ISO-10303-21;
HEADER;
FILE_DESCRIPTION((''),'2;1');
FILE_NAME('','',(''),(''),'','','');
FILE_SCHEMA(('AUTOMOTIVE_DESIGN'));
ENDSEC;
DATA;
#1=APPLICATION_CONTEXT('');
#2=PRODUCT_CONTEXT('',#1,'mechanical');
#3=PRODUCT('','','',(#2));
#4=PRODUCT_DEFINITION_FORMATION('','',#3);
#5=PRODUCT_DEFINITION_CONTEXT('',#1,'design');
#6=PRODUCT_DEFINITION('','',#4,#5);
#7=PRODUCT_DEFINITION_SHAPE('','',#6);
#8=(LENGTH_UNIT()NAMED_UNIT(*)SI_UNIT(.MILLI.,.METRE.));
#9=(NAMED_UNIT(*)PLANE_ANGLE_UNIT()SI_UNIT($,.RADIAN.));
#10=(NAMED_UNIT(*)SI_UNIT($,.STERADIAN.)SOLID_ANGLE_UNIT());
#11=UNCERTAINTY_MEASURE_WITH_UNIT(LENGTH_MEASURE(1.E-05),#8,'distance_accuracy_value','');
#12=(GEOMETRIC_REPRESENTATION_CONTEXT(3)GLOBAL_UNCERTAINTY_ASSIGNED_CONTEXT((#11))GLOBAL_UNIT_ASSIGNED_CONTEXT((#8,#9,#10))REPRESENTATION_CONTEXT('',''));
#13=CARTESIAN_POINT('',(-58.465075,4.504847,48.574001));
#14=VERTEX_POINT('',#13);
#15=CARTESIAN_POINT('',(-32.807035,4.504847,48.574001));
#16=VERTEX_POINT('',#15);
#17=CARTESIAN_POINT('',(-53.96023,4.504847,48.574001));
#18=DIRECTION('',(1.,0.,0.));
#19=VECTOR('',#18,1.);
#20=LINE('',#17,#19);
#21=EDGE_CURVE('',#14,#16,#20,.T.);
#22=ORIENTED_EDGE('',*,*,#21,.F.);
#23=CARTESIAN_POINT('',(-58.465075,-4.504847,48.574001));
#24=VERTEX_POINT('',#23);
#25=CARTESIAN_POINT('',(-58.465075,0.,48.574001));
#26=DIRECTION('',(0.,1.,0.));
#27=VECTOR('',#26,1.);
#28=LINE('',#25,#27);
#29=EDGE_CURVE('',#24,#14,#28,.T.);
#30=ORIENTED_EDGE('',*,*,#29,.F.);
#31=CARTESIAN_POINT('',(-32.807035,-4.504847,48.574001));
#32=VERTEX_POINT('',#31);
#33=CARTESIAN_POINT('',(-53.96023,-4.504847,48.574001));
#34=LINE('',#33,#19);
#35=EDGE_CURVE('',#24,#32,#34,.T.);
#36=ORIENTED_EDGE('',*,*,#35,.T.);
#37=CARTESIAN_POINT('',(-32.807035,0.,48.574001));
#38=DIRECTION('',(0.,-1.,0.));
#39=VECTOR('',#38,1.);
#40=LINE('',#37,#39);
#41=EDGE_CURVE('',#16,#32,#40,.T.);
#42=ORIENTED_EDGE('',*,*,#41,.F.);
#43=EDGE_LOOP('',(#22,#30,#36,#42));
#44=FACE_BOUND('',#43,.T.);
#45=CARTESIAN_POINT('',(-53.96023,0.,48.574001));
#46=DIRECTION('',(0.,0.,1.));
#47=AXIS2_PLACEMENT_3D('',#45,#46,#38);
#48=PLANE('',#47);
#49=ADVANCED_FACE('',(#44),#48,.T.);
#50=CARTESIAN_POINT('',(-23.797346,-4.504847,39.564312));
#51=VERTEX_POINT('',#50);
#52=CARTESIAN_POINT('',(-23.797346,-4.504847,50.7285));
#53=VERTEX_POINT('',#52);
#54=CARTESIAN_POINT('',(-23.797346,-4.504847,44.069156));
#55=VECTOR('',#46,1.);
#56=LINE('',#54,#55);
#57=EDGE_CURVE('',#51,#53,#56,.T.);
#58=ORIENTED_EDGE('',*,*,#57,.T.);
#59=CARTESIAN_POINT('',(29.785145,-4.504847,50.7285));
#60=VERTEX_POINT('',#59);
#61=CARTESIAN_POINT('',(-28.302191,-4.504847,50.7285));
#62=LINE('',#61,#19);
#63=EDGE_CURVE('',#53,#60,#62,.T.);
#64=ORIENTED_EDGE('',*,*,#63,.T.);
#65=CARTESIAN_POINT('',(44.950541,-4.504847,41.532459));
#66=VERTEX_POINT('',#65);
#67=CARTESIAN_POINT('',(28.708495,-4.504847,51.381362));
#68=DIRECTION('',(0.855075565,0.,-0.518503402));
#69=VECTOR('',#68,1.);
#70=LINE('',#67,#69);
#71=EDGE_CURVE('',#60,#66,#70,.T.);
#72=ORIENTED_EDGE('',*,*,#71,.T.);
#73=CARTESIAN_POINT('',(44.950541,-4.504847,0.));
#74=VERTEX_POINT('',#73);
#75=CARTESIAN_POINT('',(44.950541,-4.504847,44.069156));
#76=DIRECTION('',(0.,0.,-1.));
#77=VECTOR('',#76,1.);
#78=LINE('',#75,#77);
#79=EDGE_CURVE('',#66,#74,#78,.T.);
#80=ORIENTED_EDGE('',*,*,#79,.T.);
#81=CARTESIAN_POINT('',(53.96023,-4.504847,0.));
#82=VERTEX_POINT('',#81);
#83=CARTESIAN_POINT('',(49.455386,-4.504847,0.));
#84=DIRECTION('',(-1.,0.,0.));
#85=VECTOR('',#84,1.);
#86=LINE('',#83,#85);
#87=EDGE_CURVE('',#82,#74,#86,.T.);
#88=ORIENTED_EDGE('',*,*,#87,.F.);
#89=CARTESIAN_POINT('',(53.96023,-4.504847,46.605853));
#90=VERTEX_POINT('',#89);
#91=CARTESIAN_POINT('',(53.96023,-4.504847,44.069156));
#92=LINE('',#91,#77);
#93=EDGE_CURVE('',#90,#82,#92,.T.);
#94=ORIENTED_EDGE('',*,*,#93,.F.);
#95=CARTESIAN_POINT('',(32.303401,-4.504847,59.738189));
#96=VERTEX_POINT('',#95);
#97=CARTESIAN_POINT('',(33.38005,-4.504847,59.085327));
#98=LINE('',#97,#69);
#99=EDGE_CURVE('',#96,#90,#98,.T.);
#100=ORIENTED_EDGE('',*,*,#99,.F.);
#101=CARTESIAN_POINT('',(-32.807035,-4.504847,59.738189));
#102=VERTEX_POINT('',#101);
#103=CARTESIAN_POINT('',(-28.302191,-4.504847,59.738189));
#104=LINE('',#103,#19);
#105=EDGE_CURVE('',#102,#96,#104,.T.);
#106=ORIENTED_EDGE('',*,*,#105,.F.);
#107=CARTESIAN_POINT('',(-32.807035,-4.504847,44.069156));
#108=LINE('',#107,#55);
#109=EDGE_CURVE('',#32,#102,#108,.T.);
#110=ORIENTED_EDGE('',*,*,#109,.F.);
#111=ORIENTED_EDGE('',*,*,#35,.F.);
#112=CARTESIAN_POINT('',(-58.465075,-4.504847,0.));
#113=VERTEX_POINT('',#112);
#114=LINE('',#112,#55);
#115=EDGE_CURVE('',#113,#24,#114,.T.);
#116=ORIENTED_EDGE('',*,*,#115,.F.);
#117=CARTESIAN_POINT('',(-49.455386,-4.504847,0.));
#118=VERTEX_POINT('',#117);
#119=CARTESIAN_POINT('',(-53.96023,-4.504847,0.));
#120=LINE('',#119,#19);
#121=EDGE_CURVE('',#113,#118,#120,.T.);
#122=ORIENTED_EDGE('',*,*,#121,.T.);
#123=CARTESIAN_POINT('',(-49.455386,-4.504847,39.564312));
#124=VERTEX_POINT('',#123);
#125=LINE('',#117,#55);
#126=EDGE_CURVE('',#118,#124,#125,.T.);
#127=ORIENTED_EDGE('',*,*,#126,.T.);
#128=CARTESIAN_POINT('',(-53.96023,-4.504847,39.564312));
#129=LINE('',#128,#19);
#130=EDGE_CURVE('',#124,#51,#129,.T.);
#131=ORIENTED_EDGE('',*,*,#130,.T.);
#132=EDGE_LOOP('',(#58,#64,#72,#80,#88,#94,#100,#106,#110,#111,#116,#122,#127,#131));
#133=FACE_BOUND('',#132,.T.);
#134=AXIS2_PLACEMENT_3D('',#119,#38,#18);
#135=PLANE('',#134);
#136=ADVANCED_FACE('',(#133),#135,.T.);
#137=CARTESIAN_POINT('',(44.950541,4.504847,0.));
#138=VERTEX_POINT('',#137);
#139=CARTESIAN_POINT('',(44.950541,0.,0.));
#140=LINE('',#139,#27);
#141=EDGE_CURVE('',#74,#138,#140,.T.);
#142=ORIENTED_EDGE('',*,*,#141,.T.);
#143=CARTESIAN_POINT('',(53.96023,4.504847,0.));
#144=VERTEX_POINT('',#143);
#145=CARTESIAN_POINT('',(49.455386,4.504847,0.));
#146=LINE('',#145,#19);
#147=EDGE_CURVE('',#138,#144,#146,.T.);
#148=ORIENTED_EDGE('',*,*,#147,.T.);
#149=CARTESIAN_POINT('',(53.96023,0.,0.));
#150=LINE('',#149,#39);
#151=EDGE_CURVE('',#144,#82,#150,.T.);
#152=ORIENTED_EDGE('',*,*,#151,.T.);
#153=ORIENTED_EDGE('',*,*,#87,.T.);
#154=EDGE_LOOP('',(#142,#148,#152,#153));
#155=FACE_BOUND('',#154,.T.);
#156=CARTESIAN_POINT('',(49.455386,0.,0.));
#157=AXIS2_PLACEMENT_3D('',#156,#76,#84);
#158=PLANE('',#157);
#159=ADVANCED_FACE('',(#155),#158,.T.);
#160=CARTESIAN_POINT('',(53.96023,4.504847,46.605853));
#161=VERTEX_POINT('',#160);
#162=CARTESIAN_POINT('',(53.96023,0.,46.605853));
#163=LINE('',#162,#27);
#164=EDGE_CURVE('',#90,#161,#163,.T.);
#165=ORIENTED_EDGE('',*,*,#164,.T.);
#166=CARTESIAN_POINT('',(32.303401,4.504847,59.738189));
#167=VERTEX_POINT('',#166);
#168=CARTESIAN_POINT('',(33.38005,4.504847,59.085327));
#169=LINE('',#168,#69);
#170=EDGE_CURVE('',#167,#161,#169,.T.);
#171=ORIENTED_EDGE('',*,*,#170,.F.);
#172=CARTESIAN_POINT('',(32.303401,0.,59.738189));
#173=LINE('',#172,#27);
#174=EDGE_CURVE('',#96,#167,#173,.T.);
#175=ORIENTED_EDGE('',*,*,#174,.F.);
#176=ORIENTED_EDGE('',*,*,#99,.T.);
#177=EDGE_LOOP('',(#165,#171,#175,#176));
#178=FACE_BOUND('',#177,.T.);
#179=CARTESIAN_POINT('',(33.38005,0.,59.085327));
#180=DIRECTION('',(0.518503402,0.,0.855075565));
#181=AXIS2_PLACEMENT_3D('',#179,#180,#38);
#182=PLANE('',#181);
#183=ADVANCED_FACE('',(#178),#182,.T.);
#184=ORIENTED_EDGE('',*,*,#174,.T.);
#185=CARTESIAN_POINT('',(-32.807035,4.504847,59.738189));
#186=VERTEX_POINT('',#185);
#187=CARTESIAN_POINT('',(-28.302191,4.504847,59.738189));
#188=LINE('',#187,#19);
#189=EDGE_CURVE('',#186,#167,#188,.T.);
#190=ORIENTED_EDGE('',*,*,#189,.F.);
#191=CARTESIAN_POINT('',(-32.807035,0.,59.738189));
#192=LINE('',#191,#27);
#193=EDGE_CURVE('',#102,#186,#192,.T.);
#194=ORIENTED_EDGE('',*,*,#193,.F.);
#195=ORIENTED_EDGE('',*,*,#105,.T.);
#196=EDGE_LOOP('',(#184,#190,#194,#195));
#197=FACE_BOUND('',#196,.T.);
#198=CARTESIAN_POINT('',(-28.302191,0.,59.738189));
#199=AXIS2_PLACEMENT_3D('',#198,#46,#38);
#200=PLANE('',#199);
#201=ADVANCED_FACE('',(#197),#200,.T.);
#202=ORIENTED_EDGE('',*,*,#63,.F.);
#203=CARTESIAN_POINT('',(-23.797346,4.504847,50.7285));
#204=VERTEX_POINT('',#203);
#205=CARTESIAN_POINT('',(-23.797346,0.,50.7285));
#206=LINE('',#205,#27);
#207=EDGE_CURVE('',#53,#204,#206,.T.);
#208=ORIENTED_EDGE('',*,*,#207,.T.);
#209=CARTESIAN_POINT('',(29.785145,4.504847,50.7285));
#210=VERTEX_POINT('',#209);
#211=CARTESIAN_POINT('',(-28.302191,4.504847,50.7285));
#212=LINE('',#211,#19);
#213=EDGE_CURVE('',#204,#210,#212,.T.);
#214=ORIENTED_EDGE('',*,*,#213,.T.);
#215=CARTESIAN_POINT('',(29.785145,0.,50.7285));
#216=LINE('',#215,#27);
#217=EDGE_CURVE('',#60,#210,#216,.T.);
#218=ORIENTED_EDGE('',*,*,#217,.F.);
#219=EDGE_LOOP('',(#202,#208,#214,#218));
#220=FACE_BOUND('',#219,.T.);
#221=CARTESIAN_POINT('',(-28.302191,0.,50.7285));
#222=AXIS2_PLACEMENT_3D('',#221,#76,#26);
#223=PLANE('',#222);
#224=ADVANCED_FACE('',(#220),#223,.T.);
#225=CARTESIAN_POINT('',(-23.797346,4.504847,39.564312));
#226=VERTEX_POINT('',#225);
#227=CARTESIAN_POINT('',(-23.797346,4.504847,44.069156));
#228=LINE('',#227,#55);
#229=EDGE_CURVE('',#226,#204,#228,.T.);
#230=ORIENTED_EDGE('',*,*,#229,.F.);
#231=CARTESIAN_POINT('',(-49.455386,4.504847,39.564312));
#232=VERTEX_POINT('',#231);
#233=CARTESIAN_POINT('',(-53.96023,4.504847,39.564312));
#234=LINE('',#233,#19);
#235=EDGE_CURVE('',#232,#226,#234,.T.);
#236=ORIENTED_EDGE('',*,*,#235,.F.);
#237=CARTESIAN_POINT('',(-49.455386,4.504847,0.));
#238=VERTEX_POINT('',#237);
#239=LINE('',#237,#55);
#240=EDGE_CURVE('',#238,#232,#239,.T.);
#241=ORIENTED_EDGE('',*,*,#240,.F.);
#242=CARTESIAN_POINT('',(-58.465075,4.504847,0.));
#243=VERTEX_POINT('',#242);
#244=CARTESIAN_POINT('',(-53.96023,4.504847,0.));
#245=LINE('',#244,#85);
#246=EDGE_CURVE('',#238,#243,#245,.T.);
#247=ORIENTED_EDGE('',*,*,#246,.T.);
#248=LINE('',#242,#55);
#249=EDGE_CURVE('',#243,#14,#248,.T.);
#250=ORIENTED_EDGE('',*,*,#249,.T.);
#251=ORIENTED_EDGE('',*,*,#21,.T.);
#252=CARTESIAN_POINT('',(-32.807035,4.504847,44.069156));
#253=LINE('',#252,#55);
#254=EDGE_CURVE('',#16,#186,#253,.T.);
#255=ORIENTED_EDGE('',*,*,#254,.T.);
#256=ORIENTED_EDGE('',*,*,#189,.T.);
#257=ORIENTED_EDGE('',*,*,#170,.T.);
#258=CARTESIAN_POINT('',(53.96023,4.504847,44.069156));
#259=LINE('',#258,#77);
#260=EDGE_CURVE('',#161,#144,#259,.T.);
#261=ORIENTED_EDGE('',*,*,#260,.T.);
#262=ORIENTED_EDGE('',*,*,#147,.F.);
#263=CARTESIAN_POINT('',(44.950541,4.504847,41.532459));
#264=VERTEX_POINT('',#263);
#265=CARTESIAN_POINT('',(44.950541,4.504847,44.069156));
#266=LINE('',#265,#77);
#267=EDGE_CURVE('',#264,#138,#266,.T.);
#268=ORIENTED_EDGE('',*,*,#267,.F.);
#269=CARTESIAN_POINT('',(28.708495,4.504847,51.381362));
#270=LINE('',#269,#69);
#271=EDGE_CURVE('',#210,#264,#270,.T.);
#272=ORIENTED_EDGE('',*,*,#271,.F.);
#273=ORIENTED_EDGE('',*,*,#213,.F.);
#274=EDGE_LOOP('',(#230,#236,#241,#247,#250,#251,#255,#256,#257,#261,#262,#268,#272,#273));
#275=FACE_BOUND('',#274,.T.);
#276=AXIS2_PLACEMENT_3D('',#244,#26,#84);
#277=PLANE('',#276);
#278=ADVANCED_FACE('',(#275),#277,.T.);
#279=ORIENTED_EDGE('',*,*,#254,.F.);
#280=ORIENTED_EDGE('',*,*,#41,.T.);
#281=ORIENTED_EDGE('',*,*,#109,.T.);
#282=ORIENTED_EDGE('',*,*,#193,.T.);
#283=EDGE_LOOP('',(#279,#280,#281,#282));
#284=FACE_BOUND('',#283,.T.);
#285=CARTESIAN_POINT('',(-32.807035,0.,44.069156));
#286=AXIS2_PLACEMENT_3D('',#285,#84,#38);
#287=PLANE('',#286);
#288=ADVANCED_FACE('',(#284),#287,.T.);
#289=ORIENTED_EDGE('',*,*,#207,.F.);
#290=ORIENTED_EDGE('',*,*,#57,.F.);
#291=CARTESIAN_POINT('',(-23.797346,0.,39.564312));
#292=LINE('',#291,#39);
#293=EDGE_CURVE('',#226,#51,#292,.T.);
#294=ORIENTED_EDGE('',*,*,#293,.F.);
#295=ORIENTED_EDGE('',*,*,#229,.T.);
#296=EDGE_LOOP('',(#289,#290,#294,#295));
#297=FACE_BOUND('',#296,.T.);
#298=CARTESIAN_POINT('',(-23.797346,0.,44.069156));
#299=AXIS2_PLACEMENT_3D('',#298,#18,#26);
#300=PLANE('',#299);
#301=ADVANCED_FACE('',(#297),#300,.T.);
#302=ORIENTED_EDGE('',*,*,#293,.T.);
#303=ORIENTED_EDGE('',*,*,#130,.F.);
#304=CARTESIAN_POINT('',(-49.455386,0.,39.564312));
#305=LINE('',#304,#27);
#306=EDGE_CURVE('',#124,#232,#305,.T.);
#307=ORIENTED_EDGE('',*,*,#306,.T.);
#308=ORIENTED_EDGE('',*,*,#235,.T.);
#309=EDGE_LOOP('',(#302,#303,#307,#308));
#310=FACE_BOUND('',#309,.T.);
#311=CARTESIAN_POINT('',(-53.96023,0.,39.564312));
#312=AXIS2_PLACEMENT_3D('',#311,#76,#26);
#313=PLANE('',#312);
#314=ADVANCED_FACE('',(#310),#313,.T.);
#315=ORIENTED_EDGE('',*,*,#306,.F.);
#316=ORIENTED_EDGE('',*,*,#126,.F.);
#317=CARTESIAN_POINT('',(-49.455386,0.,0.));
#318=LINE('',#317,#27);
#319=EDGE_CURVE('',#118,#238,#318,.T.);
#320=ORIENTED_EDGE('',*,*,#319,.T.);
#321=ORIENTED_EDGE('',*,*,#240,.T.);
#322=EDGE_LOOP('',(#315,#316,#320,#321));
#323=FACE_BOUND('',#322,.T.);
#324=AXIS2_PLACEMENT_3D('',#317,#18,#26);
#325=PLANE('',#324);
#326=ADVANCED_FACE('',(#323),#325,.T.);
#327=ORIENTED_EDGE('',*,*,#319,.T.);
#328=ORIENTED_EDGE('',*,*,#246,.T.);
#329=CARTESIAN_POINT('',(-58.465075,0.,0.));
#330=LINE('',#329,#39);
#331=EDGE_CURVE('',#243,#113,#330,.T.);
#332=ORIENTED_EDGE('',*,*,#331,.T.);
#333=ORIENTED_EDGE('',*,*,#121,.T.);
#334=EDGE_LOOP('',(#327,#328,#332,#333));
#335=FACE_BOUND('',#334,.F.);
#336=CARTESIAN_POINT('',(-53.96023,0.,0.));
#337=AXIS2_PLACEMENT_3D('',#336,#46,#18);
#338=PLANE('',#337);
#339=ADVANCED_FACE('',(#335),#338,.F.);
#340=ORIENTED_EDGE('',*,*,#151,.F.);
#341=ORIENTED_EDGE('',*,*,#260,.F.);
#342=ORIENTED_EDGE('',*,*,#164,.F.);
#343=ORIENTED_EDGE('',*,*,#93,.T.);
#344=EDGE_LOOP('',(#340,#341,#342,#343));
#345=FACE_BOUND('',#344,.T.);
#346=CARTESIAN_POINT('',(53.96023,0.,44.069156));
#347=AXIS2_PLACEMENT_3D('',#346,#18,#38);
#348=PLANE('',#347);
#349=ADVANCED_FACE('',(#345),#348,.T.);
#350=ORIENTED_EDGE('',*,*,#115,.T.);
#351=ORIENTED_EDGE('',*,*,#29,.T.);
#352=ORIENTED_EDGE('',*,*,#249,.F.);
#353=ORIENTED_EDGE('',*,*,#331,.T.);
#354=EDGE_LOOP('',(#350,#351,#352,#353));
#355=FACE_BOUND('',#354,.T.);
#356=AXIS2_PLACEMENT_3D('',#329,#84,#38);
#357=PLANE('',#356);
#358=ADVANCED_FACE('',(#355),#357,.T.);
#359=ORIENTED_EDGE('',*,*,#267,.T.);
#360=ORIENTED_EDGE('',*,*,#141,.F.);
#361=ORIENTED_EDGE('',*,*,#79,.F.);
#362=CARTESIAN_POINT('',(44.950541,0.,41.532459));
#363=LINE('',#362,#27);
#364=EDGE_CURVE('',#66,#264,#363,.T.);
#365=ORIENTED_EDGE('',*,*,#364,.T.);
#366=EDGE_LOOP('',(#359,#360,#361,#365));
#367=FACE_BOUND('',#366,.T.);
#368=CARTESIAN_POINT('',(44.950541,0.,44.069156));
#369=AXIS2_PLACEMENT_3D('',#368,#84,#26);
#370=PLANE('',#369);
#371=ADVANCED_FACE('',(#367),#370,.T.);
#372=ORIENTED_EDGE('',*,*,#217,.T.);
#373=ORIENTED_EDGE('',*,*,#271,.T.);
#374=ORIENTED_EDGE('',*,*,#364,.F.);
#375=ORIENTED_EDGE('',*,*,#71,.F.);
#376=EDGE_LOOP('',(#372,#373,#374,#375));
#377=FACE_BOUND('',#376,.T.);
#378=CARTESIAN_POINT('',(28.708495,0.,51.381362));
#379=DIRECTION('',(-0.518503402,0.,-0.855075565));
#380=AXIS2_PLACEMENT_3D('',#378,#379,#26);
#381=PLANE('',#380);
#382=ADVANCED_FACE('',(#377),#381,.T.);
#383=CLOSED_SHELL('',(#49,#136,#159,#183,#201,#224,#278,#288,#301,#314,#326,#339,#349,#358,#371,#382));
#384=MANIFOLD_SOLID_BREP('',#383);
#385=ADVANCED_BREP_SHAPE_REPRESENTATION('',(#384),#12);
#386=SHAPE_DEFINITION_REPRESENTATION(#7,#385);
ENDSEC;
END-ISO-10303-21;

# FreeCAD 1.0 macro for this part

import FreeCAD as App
import Part
import Sketcher
Q = App.Units.Quantity

doc = App.newDocument("Part")
body = doc.addObject("PartDesign::Body", "Body")

sketch1 = body.newObject("Sketcher::SketchObject", "Sketch")
sketch1.AttachmentSupport = (doc.getObject("XY_Plane"), [""])
sketch1.MapMode = "FlatFace"
sketch1.addGeometry(Part.LineSegment(App.Vector(-58, 5, 0), App.Vector(-58, -5, 0)), False)
sketch1.addGeometry(Part.LineSegment(App.Vector(-58, -5, 0), App.Vector(-49, -5, 0)), False)
sketch1.addGeometry(Part.LineSegment(App.Vector(-49, -5, 0), App.Vector(-49, 5, 0)), False)
sketch1.addGeometry(Part.LineSegment(App.Vector(-49, 5, 0), App.Vector(-58, 5, 0)), False)
sketch1.addConstraint(Sketcher.Constraint("Coincident", 0, 2, 1, 1))
sketch1.addConstraint(Sketcher.Constraint("Coincident", 1, 2, 2, 1))
sketch1.addConstraint(Sketcher.Constraint("Coincident", 2, 2, 3, 1))
sketch1.addConstraint(Sketcher.Constraint("Coincident", 3, 2, 0, 1))
sketch1.addConstraint(Sketcher.Constraint("Vertical", 0))
sketch1.addConstraint(Sketcher.Constraint("Horizontal", 1))
sketch1.addConstraint(Sketcher.Constraint("Vertical", 2))
sketch1.addConstraint(Sketcher.Constraint("Horizontal", 3))
sketch1.addConstraint(Sketcher.Constraint("DistanceX", 1, 1, 1, 2, Q("9.009689 mm")))
sketch1.addConstraint(Sketcher.Constraint("DistanceY", 0, 2, 0, 1, Q("9.009694 mm")))
sketch1.addConstraint(Sketcher.Constraint("DistanceX", 0, 2, -1, 1, Q("58.465075 mm")))
sketch1.addConstraint(Sketcher.Constraint("DistanceY", 0, 2, -1, 1, Q("4.504847 mm")))

sketch2 = body.newObject("Sketcher::SketchObject", "Sketch001")
sketch2.AttachmentSupport = (doc.getObject("XZ_Plane"), [""])
sketch2.MapMode = "FlatFace"
sketch2.addGeometry(Part.LineSegment(App.Vector(-54, 0, 0), App.Vector(-54, 44, 0)), False)
sketch2.addGeometry(Part.LineSegment(App.Vector(-54, 44, 0), App.Vector(-28, 44, 0)), False)
sketch2.addGeometry(Part.LineSegment(App.Vector(-28, 44, 0), App.Vector(-28, 55, 0)), False)
sketch2.addGeometry(Part.LineSegment(App.Vector(-28, 55, 0), App.Vector(31, 55, 0)), False)
sketch2.addGeometry(Part.LineSegment(App.Vector(31, 55, 0), App.Vector(49, 44, 0)), False)
sketch2.addGeometry(Part.LineSegment(App.Vector(49, 44, 0), App.Vector(49, 0, 0)), False)
sketch2.addConstraint(Sketcher.Constraint("Coincident", 0, 2, 1, 1))
sketch2.addConstraint(Sketcher.Constraint("Coincident", 1, 2, 2, 1))
sketch2.addConstraint(Sketcher.Constraint("Coincident", 2, 2, 3, 1))
sketch2.addConstraint(Sketcher.Constraint("Coincident", 3, 2, 4, 1))
sketch2.addConstraint(Sketcher.Constraint("Coincident", 4, 2, 5, 1))
sketch2.addConstraint(Sketcher.Constraint("Vertical", 0))
sketch2.addConstraint(Sketcher.Constraint("Horizontal", 1))
sketch2.addConstraint(Sketcher.Constraint("Vertical", 2))
sketch2.addConstraint(Sketcher.Constraint("Horizontal", 3))
sketch2.addConstraint(Sketcher.Constraint("Vertical", 5))
sketch2.addConstraint(Sketcher.Constraint("PointOnObject", 0, 1, -1))
sketch2.addConstraint(Sketcher.Constraint("PointOnObject", 5, 2, -1))
sketch2.addConstraint(Sketcher.Constraint("Horizontal", 1, 2, 4, 2))
sketch2.addConstraint(Sketcher.Constraint("DistanceX", 1, 1, 1, 2, Q("25.658039 mm")))
sketch2.addConstraint(Sketcher.Constraint("DistanceY", 2, 1, 2, 2, Q("11.164188 mm")))
sketch2.addConstraint(Sketcher.Constraint("DistanceX", 3, 1, 3, 2, Q("59.346464 mm")))
sketch2.addConstraint(Sketcher.Constraint("DistanceY", 0, 1, 0, 2, Q("44.069156 mm")))
sketch2.addConstraint(Sketcher.Constraint("DistanceX", 0, 1, -1, 1, Q("53.96023 mm")))
sketch2.addConstraint(Sketcher.Constraint("Distance", 4, Q("21.531562 mm")))
doc.recompute()

additivepipe = body.newObject("PartDesign::AdditivePipe", "AdditivePipe")
additivepipe.Profile = sketch1
additivepipe.Spine = (sketch2, ["Edge1", "Edge2", "Edge3", "Edge4", "Edge5", "Edge6"])
additivepipe.Transition = "Right corner"

doc.recompute()
